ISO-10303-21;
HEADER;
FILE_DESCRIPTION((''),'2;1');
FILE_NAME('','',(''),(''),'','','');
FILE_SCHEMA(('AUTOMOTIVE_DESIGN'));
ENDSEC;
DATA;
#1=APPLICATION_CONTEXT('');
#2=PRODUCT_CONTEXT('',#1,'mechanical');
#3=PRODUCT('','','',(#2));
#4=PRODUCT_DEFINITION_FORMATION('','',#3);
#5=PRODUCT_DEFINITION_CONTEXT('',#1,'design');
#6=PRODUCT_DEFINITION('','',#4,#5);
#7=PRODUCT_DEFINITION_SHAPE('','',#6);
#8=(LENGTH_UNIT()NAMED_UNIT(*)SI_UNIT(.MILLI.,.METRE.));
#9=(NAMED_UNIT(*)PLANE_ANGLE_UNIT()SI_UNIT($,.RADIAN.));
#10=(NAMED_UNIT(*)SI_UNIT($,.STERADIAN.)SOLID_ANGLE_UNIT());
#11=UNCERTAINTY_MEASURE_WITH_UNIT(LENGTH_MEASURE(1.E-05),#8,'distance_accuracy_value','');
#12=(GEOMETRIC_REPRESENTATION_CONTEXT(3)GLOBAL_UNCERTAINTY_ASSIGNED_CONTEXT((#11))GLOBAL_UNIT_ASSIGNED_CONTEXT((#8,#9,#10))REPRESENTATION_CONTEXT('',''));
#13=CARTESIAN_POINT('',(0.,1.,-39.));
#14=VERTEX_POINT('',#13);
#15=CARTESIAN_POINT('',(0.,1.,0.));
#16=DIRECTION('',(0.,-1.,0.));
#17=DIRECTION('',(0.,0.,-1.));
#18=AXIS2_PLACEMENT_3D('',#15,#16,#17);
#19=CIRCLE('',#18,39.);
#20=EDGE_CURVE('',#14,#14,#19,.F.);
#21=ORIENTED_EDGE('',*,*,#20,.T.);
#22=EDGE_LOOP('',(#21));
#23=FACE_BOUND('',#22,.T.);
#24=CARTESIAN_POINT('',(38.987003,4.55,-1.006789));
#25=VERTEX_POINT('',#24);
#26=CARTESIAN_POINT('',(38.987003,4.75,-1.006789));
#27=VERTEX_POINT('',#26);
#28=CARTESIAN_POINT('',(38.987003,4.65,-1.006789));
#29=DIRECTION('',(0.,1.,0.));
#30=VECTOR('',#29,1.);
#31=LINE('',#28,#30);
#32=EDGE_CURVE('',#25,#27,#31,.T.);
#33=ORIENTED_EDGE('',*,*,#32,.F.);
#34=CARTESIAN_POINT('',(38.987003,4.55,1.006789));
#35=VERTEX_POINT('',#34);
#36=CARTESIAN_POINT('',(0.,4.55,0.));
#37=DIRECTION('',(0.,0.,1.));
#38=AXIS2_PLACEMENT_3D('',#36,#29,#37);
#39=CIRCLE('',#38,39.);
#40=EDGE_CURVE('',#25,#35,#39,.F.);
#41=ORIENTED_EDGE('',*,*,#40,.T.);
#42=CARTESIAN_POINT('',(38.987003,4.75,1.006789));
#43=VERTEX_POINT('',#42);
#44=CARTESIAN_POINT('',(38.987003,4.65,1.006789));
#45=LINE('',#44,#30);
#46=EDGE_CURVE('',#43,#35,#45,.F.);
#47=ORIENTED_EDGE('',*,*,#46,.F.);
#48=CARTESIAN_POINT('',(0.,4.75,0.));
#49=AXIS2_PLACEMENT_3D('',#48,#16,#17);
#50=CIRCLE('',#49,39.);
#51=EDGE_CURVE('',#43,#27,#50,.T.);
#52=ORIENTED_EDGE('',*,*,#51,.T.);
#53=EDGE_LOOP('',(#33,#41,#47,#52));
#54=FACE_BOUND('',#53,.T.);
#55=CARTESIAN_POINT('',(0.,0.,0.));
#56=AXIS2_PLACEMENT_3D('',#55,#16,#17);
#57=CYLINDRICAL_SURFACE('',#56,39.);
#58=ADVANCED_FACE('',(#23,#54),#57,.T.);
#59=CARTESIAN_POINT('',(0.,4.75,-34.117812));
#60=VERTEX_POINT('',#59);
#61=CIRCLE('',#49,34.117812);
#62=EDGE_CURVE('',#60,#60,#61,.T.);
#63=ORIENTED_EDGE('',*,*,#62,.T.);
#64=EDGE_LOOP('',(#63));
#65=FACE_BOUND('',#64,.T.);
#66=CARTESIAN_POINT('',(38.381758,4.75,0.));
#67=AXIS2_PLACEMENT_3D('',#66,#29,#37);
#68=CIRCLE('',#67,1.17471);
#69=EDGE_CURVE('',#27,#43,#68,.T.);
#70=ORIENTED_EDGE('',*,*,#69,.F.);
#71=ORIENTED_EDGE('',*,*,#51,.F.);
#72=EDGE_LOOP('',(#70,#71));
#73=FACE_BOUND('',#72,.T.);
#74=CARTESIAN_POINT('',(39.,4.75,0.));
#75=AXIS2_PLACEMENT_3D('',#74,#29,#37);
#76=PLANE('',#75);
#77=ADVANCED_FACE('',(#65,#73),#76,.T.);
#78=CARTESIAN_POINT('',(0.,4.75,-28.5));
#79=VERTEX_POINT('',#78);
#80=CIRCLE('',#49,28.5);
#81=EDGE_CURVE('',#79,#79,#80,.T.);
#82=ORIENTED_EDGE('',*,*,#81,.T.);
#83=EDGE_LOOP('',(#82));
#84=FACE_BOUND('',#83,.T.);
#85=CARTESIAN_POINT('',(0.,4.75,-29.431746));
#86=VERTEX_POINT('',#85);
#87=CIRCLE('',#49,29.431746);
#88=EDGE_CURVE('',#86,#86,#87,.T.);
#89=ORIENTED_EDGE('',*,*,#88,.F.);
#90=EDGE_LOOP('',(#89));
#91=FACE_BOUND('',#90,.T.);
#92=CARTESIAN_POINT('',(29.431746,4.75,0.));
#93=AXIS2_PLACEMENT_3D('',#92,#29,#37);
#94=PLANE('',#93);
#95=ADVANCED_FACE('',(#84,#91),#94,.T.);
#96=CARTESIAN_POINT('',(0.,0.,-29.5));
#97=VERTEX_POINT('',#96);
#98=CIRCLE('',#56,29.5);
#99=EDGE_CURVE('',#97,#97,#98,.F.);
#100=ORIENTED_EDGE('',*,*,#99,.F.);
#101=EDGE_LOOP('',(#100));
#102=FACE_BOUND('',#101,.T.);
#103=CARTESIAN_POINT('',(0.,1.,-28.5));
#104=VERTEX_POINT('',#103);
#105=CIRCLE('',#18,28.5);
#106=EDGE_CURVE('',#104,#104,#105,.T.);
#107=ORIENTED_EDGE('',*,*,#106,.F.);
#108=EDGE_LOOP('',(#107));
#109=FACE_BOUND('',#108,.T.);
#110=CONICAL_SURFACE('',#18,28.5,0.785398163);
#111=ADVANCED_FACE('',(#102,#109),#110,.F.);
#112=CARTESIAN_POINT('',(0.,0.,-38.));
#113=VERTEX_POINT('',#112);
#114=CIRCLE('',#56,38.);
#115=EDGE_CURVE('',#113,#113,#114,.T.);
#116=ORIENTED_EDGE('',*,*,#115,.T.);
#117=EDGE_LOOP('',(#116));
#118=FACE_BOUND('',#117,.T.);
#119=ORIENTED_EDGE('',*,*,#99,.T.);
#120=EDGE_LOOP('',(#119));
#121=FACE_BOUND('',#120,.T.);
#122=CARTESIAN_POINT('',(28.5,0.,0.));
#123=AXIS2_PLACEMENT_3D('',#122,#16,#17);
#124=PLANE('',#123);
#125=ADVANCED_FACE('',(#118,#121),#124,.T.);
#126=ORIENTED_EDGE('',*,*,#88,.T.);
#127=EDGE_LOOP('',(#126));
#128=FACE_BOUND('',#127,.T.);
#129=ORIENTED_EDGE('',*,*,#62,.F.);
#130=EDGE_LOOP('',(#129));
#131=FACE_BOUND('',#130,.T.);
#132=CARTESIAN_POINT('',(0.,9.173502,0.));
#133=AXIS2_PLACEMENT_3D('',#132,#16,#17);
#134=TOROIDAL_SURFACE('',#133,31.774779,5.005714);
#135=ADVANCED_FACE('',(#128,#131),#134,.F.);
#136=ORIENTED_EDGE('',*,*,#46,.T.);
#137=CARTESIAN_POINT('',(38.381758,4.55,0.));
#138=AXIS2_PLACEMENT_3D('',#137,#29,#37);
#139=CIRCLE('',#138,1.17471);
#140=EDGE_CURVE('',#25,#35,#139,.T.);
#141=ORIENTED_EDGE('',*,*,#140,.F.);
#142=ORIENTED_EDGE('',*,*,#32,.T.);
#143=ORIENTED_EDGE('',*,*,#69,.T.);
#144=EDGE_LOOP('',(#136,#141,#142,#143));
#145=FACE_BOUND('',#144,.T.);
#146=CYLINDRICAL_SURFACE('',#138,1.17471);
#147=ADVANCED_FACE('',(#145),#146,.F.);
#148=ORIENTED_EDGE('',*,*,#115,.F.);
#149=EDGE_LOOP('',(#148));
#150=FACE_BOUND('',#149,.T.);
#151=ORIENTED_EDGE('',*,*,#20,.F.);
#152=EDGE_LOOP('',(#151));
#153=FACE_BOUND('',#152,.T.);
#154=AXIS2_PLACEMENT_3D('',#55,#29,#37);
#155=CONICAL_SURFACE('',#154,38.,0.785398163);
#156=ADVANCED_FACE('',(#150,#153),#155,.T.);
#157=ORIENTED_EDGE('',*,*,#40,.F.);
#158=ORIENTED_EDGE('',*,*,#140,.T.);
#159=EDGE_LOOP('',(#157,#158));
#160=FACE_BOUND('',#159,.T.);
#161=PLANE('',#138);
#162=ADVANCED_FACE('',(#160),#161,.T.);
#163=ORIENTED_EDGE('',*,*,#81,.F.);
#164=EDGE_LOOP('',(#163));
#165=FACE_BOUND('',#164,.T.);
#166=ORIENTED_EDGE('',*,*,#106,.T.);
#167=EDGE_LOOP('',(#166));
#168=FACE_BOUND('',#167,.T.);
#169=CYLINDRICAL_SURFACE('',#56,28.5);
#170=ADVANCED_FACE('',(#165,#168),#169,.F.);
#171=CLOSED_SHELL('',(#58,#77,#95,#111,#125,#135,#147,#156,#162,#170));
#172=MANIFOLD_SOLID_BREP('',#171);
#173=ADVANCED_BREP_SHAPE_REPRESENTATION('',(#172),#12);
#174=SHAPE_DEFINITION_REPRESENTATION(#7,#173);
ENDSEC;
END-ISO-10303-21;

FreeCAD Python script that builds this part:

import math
import FreeCAD as App
import Part
import Sketcher


def edges_at(feature, points):
    """Names of the edges that pass closest to the given points."""
    edges = feature.Shape.Edges
    near = lambda p: min(range(len(edges)), key=lambda i: edges[i].distToShape(Part.Vertex(*p))[0])
    return sorted({f"Edge{near(p) + 1}" for p in points})

doc = App.newDocument("Part")
body = doc.addObject("PartDesign::Body", "Body")

# Sketch on XY plane
sketch1 = body.newObject("Sketcher::SketchObject", "Sketch")
sketch1.AttachmentSupport = (doc.getObject("XY_Plane"), [""])
sketch1.MapMode = "FlatFace"
sketch1.addGeometry(Part.LineSegment(App.Vector(28.5, 0, 0), App.Vector(39, 0, 0)), False)
sketch1.addGeometry(Part.LineSegment(App.Vector(39, 0, 0), App.Vector(39, 4.8, 0)), False)
sketch1.addGeometry(Part.LineSegment(App.Vector(39, 4.8, 0), App.Vector(34.1, 4.8, 0)), False)
sketch1.addGeometry(Part.ArcOfCircle(Part.Circle(App.Vector(31.8, 9.2, 0), App.Vector(0, 0, 1), 5), math.radians(-118), math.radians(-62)), False)
sketch1.addGeometry(Part.LineSegment(App.Vector(29.4, 4.8, 0), App.Vector(28.5, 4.8, 0)), False)
sketch1.addGeometry(Part.LineSegment(App.Vector(28.5, 4.8, 0), App.Vector(28.5, 0, 0)), False)
sketch1.addConstraint(Sketcher.Constraint("Coincident", 0, 2, 1, 1))
sketch1.addConstraint(Sketcher.Constraint("Coincident", 1, 2, 2, 1))
sketch1.addConstraint(Sketcher.Constraint("Coincident", 2, 2, 3, 2))
sketch1.addConstraint(Sketcher.Constraint("Coincident", 3, 1, 4, 1))
sketch1.addConstraint(Sketcher.Constraint("Coincident", 4, 2, 5, 1))
sketch1.addConstraint(Sketcher.Constraint("Coincident", 5, 2, 0, 1))
sketch1.addConstraint(Sketcher.Constraint("Horizontal", 0))
sketch1.addConstraint(Sketcher.Constraint("Vertical", 1))
sketch1.addConstraint(Sketcher.Constraint("Horizontal", 2))
sketch1.addConstraint(Sketcher.Constraint("Horizontal", 4))
sketch1.addConstraint(Sketcher.Constraint("Vertical", 5))
sketch1.addConstraint(Sketcher.Constraint("PointOnObject", 0, 2, -1))
sketch1.addConstraint(Sketcher.Constraint("Horizontal", 2, 2, 3, 1))
sketch1.addConstraint(Sketcher.Constraint("DistanceX", 0, 1, 0, 2, 10.5))
sketch1.addConstraint(Sketcher.Constraint("DistanceX", -1, 1, 0, 2, 39.0))
sketch1.addConstraint(Sketcher.Constraint("DistanceY", 1, 1, 1, 2, 4.75))
sketch1.addConstraint(Sketcher.Constraint("Radius", 3, 5.005714))
sketch1.addConstraint(Sketcher.Constraint("DistanceX", 2, 2, 2, 1, 4.882188))
sketch1.addConstraint(Sketcher.Constraint("DistanceX", 4, 2, 4, 1, 0.931746))
revolution = body.newObject("PartDesign::Revolution", "Revolution")
revolution.Profile = sketch1
revolution.ReferenceAxis = (sketch1, ["V_Axis"])
revolution.Angle = 360

# Sketch on XZ plane
sketch2 = body.newObject("Sketcher::SketchObject", "Sketch001")
sketch2.AttachmentSupport = (doc.getObject("XZ_Plane"), [""])
sketch2.MapMode = "FlatFace"
sketch2.AttachmentOffset = App.Placement(App.Vector(0, 0, -4.75), App.Rotation())
sketch2.addGeometry(Part.Circle(App.Vector(38.4, 0, 0), App.Vector(0, 0, 1), 1.2), False)
sketch2.addConstraint(Sketcher.Constraint("PointOnObject", 0, 3, -1))
sketch2.addConstraint(Sketcher.Constraint("Diameter", 0, 2.349421))
sketch2.addConstraint(Sketcher.Constraint("DistanceX", -1, 1, 0, 3, 38.381758))
pocket1 = body.newObject("PartDesign::Pocket", "Pocket")
pocket1.Profile = sketch2
pocket1.Length = 0.2
pocket1.Reversed = True
doc.recompute()

chamfer = body.newObject("PartDesign::Chamfer", "Chamfer")
chamfer.Base = (pocket1, edges_at(pocket1, [(-39, 0, 0), (-28.5, 0, 0)]))
chamfer.Size = 1

doc.recompute()
